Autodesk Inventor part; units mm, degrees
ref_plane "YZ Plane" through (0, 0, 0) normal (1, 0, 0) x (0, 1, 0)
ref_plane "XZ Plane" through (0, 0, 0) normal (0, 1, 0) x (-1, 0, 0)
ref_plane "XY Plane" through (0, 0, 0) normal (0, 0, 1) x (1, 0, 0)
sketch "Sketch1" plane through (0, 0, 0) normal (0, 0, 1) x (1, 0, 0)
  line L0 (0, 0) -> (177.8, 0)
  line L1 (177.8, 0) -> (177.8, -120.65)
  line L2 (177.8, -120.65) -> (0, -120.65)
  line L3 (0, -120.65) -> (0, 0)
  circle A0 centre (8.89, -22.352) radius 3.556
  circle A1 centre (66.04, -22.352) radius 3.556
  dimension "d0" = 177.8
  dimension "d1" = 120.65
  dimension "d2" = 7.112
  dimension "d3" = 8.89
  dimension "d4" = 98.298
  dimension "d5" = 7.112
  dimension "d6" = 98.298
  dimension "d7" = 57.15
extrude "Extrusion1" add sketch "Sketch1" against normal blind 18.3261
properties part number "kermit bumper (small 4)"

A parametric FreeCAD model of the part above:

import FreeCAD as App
import Part
import Sketcher
Q = App.Units.Quantity


def add_polygon(sketch, points):
    """Adds a closed chain of lines whose ends are joined by coincident constraints."""
    first, n = sketch.GeometryCount, len(points)
    for a, b in zip(points, points[1:] + points[:1]):
        sketch.addGeometry(Part.LineSegment(App.Vector(*a, 0), App.Vector(*b, 0)), False)
    for i in range(n):
        sketch.addConstraint(Sketcher.Constraint("Coincident", first + i, 2, first + (i + 1) % n, 1))

doc = App.newDocument("Part")
params = doc.addObject("Spreadsheet::Sheet", "Params")
for row, (alias, value) in enumerate([
    ("sketch1_diameter", "0.28 in"),
    ("sketch1_width", "7 in"),
    ("sketch1_height", "4.75 in"),
    ("pad1_length", "0.7215 in"),
], start=1):
    params.set(f"A{row}", alias)
    params.set(f"B{row}", "=" + value)
    params.setAlias(f"B{row}", alias)

body = doc.addObject("PartDesign::Body", "Body")

# Sketch on XY plane
sketch1 = body.newObject("Sketcher::SketchObject", "Sketch")
sketch1.AttachmentSupport = (doc.getObject("XY_Plane"), [""])
sketch1.MapMode = "FlatFace"
add_polygon(sketch1, [(177.8, 0), (0, 0), (0, -120.7), (177.8, -120.7)])  # lines 0-3
sketch1.addGeometry(Part.Circle(App.Vector(8.9, -22.4, 0), App.Vector(0, 0, 1), 3.6), False)  # 4
sketch1.addGeometry(Part.Circle(App.Vector(66, -22.4, 0), App.Vector(0, 0, 1), 3.6), False)  # 5
sketch1.addConstraint([
    Sketcher.Constraint("Horizontal", 0),
    Sketcher.Constraint("Vertical", 1),
    Sketcher.Constraint("Horizontal", 2),
    Sketcher.Constraint("Vertical", 3),
    Sketcher.Constraint("Coincident", 0, 2, -1, 1),
    Sketcher.Constraint("Equal", 4, 5),
    Sketcher.Constraint("Horizontal", 4, 3, 5, 3),
    Sketcher.Constraint("Diameter", 4, Q("0.28 in")),
    Sketcher.Constraint("DistanceX", 0, 2, 0, 1, Q("7 in")),
    Sketcher.Constraint("DistanceY", 1, 2, 1, 1, Q("4.75 in")),
    Sketcher.Constraint("DistanceX", -1, 1, 4, 3, Q("0.35 in")),
    Sketcher.Constraint("DistanceX", 4, 3, 5, 3, Q("2.25 in")),
    Sketcher.Constraint("DistanceY", 1, 2, 4, 3, Q("3.87 in")),
])
sketch1.setExpression("Constraints[11]", "Params.sketch1_diameter")
sketch1.setExpression("Constraints[12]", "Params.sketch1_width")
sketch1.setExpression("Constraints[13]", "Params.sketch1_height")
pad1 = body.newObject("PartDesign::Pad", "Pad")
pad1.Profile = sketch1
pad1.setExpression("Length", "Params.pad1_length")
pad1.Reversed = True

doc.recompute()
